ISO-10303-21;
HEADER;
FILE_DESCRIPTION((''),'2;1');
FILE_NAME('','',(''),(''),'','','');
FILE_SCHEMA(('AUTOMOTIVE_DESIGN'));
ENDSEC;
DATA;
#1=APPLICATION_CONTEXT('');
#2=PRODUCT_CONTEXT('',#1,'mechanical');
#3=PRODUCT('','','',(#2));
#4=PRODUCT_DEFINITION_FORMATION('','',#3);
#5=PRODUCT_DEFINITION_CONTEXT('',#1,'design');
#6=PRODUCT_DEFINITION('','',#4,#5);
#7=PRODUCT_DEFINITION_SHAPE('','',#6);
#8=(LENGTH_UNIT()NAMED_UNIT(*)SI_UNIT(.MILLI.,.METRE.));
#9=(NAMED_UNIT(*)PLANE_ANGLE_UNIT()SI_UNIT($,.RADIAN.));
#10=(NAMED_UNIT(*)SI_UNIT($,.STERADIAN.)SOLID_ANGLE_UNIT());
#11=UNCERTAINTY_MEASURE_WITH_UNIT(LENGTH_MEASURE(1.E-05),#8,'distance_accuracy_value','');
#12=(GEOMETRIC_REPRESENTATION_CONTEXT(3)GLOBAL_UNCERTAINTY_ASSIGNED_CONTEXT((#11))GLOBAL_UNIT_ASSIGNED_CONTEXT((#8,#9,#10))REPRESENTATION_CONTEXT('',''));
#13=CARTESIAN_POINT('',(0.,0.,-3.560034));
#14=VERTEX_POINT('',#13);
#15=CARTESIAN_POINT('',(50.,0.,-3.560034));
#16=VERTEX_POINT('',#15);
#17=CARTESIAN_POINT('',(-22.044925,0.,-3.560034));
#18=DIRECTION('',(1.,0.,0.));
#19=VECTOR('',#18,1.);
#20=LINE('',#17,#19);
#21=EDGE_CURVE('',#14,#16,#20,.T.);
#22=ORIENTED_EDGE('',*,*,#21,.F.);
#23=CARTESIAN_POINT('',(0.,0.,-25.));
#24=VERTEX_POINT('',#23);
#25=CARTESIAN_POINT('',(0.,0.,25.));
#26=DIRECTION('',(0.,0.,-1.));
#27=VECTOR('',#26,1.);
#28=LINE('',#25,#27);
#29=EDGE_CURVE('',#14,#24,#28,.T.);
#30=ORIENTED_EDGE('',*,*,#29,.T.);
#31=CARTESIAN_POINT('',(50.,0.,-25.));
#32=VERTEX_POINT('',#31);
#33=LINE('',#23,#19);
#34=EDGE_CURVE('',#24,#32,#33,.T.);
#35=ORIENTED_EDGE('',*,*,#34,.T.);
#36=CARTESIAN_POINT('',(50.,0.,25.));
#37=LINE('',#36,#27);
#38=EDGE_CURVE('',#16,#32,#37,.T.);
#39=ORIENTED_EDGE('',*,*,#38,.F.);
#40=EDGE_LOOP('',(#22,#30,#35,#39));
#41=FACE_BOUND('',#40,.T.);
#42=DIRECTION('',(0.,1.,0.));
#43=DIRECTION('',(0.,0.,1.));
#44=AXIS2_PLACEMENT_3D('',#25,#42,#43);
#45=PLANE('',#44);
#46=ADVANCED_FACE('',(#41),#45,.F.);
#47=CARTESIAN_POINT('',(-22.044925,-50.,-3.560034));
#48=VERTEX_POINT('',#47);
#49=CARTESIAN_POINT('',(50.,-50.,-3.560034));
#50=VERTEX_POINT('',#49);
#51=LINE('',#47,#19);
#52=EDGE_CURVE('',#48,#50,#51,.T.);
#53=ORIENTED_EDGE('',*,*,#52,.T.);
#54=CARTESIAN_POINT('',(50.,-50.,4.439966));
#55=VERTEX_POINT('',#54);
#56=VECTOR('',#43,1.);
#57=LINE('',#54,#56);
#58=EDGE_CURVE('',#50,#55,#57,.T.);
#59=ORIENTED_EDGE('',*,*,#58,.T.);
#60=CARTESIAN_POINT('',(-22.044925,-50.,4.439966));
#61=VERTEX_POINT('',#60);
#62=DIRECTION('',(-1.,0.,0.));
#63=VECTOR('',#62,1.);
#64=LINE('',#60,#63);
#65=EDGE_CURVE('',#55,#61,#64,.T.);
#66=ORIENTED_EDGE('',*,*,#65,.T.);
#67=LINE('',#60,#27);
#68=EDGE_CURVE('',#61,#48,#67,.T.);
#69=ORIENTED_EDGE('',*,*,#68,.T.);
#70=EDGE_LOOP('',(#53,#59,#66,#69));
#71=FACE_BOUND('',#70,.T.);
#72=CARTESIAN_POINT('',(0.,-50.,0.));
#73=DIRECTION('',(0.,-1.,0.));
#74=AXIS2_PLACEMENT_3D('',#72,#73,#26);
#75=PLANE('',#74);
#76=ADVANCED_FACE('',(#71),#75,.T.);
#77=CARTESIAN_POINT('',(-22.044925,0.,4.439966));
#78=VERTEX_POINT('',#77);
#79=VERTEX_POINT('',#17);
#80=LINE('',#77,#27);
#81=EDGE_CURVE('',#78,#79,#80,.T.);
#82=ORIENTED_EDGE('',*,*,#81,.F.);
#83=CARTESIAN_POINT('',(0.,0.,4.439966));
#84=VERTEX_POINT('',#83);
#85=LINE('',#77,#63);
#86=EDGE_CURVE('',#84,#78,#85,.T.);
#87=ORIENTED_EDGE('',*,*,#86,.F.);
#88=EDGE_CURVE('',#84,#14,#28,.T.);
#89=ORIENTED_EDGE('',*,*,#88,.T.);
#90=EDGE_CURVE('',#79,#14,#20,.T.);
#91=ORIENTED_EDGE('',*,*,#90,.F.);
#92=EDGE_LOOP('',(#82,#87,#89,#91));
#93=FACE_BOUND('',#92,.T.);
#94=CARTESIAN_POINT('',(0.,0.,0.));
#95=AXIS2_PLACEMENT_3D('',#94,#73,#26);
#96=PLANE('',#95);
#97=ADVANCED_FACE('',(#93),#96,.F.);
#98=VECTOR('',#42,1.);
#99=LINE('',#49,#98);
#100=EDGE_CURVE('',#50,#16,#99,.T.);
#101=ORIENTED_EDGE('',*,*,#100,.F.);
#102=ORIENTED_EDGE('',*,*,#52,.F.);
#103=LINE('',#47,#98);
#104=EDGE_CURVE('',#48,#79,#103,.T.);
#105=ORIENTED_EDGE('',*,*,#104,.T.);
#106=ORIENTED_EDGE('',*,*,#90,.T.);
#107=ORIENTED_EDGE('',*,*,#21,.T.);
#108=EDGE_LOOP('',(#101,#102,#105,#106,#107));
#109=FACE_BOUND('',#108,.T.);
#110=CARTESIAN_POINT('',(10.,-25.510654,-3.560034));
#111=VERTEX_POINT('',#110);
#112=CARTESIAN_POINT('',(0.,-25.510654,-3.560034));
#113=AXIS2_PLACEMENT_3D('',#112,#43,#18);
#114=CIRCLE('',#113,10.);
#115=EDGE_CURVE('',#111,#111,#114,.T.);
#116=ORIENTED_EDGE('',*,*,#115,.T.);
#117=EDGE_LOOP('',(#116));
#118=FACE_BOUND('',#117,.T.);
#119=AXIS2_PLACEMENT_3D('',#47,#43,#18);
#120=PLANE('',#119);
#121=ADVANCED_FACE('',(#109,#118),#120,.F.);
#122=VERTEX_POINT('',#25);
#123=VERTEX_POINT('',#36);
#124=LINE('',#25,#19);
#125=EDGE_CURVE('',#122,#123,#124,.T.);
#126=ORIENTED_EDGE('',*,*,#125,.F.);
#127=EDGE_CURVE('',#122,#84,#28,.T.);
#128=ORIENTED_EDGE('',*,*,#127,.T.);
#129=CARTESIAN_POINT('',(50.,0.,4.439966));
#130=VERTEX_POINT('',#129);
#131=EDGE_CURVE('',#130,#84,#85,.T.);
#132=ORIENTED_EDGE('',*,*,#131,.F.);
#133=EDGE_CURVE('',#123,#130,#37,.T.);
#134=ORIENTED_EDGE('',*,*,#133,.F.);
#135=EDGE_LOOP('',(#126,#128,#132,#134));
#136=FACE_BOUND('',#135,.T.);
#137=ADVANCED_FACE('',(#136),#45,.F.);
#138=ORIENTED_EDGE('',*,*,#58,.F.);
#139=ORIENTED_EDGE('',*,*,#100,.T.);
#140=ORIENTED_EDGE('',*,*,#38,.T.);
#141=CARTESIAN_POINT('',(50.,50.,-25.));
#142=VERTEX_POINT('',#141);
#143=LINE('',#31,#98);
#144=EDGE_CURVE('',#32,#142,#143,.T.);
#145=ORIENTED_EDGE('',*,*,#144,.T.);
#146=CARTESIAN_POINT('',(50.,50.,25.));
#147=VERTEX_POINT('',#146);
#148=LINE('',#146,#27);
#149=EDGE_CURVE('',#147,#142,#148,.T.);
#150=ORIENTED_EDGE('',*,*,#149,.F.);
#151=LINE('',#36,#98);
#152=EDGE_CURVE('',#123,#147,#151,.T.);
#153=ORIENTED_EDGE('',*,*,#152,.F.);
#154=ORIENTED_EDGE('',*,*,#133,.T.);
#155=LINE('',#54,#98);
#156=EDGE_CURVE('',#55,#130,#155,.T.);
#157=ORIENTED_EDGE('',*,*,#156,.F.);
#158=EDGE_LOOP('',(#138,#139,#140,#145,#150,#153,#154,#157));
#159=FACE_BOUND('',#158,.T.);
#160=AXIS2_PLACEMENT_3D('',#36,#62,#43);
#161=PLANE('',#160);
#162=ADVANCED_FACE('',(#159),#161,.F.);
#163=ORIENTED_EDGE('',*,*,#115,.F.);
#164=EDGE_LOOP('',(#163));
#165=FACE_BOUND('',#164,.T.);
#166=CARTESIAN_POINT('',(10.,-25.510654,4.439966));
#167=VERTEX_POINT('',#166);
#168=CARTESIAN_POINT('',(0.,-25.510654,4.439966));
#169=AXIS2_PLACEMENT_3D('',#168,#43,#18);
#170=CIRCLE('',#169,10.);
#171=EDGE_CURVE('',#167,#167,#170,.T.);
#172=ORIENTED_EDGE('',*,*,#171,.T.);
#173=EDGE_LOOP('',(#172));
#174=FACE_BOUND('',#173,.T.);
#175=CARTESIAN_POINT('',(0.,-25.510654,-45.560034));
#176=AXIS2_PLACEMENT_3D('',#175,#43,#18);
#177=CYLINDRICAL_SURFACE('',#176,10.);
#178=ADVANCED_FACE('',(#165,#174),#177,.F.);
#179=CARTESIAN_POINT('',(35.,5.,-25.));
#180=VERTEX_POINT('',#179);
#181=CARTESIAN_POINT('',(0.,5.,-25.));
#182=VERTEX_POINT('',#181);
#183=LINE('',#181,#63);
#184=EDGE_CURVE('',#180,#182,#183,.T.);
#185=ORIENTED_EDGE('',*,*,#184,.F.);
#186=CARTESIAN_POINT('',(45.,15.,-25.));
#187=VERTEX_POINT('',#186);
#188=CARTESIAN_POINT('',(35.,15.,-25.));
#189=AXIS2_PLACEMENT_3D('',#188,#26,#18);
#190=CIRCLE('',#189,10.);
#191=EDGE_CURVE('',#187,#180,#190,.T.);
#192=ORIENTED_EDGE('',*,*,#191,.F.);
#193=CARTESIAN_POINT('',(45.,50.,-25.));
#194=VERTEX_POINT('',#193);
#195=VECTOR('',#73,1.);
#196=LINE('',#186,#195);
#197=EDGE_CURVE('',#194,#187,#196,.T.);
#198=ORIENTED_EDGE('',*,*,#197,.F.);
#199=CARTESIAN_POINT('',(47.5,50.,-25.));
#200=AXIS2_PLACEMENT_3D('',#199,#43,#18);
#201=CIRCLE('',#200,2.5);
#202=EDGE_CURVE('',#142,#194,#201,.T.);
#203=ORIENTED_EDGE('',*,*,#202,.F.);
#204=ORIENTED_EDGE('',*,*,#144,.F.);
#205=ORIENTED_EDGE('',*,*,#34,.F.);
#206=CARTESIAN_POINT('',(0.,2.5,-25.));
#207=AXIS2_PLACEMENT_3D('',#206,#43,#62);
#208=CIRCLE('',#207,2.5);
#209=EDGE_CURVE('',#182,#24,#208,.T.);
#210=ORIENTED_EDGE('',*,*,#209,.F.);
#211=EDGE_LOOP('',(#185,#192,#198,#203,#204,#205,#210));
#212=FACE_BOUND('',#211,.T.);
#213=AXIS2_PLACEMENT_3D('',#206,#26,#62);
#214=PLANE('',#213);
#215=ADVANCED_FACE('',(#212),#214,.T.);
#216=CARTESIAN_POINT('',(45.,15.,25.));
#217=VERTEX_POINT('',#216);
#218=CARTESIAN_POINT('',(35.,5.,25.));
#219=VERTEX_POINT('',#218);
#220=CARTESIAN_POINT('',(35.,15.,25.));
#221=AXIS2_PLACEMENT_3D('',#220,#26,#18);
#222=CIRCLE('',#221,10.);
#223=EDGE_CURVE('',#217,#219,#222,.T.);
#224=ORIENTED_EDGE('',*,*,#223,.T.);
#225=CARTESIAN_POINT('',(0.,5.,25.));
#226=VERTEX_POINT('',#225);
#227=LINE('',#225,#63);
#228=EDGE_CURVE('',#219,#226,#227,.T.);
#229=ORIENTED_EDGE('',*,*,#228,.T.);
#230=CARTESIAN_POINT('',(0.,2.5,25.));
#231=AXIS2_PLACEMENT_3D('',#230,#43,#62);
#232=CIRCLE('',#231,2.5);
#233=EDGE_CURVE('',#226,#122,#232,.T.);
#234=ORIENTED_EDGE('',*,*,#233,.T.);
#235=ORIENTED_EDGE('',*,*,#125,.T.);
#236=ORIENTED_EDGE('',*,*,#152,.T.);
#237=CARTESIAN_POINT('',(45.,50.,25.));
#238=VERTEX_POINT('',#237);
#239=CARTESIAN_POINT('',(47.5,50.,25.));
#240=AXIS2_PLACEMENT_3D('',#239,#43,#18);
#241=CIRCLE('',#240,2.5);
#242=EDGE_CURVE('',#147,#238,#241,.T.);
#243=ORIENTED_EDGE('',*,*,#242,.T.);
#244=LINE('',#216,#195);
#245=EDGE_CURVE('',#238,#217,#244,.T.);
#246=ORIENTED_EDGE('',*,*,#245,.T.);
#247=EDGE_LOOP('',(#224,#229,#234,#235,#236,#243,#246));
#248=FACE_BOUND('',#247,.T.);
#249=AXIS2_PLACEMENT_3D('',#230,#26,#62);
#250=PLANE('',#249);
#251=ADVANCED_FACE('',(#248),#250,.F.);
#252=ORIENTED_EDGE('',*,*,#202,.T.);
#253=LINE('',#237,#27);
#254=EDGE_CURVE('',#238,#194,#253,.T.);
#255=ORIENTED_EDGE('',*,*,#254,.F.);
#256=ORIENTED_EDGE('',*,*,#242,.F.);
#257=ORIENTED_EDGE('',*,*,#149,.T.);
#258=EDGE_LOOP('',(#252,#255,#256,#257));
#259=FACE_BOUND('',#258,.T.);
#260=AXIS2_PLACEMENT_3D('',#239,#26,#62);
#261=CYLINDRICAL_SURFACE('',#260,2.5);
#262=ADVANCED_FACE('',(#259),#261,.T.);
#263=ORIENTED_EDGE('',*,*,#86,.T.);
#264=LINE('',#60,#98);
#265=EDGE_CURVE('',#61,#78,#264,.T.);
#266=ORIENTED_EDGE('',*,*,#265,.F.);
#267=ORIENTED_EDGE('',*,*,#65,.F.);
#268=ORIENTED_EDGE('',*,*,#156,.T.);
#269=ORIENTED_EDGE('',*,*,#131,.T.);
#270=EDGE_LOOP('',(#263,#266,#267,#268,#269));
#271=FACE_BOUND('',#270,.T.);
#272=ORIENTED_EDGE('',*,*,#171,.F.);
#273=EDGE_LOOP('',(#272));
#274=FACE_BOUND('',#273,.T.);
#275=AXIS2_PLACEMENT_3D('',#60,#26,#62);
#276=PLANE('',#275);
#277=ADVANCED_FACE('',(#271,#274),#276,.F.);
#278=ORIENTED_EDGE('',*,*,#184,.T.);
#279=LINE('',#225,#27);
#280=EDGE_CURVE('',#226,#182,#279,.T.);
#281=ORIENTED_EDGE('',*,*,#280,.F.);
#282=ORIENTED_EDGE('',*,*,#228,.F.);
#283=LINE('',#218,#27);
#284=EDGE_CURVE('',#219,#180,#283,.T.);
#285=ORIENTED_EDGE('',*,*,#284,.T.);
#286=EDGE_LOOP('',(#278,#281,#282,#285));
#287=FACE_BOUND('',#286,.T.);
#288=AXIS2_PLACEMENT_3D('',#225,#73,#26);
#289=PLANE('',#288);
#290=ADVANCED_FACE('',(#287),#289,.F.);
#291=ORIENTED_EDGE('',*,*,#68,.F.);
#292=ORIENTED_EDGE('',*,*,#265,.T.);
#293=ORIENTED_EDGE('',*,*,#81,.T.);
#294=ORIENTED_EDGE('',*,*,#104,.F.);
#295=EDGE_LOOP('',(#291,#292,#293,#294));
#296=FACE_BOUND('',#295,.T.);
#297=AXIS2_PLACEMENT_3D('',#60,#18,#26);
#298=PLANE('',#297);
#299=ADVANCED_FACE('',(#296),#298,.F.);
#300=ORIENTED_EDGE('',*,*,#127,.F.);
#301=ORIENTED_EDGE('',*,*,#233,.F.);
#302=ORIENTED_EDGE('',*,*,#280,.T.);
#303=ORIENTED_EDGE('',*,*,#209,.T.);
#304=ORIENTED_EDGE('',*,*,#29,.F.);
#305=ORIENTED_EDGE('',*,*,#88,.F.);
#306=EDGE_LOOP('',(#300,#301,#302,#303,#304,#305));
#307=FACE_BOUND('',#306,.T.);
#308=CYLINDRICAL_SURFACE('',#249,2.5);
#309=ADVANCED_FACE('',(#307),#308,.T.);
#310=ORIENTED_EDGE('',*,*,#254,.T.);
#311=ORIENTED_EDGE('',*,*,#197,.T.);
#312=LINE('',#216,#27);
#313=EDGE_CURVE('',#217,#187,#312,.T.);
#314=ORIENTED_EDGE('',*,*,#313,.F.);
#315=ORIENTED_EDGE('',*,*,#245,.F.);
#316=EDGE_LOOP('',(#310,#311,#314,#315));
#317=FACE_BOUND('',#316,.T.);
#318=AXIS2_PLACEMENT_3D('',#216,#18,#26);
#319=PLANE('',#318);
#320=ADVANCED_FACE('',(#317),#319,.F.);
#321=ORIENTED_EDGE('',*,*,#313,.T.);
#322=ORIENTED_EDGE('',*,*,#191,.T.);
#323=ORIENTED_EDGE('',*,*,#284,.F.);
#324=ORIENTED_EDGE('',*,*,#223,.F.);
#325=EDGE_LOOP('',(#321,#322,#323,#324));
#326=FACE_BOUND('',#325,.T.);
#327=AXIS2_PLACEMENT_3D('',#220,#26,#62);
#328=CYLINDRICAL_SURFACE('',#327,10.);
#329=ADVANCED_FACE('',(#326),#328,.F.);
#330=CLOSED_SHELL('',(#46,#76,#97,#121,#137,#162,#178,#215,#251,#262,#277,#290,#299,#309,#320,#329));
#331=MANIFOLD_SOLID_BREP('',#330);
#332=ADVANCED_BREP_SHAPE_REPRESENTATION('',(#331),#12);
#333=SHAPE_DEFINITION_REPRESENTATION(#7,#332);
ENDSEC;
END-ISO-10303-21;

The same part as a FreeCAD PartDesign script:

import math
import FreeCAD as App
import Part
import Sketcher

V = App.Vector


def add_polygon(sketch, points):
    """Adds a closed chain of lines whose ends are joined by coincident constraints."""
    first, n = sketch.GeometryCount, len(points)
    for a, b in zip(points, points[1:] + points[:1]):
        sketch.addGeometry(Part.LineSegment(App.Vector(*a, 0), App.Vector(*b, 0)), False)
    for i in range(n):
        sketch.addConstraint(Sketcher.Constraint("Coincident", first + i, 2, first + (i + 1) % n, 1))

doc = App.newDocument("Part")
body = doc.addObject("PartDesign::Body", "Body")

sketch1 = body.newObject("Sketcher::SketchObject", "Sketch")
sketch1.AttachmentSupport = (doc.getObject("XY_Plane"), [""])
sketch1.MapMode = "FlatFace"
sketch1.addGeometry([
    Part.LineSegment(V(0, 0, 0), V(50, 0, 0)),
    Part.LineSegment(V(50, 0, 0), V(50, 50, 0)),
    Part.ArcOfCircle(Part.Circle(V(47.5, 50, 0), V(0, 0, 1), 2.5), math.radians(0), math.radians(180)),
    Part.LineSegment(V(45, 50, 0), V(45, 15, 0)),
    Part.ArcOfCircle(Part.Circle(V(35, 15, 0), V(0, 0, 1), 10), math.radians(-90), math.radians(0)),
    Part.LineSegment(V(35, 5, 0), V(0, 5, 0)),
    Part.ArcOfCircle(Part.Circle(V(0, 2.5, 0), V(0, 0, 1), 2.5), math.radians(90), math.radians(270)),
], False)
sketch1.addConstraint([
    Sketcher.Constraint("Coincident", 0, 2, 1, 1),
    Sketcher.Constraint("Tangent", 1, 2, 2, 1),
    Sketcher.Constraint("Tangent", 2, 2, 3, 1),
    Sketcher.Constraint("Tangent", 3, 2, 4, 2),
    Sketcher.Constraint("Tangent", 4, 1, 5, 1),
    Sketcher.Constraint("Tangent", 5, 2, 6, 1),
    Sketcher.Constraint("Tangent", 6, 2, 0, 1),
    Sketcher.Constraint("Horizontal", 0),
    Sketcher.Constraint("Vertical", 1),
    Sketcher.Constraint("Vertical", 3),
    Sketcher.Constraint("Horizontal", 5),
    Sketcher.Constraint("Coincident", 6, 2, -1, 1),
    Sketcher.Constraint("Equal", 2, 6),
    Sketcher.Constraint("Equal", 0, 1),
    Sketcher.Constraint("Radius", 4, 10.0),
    Sketcher.Constraint("Radius", 2, 2.5),
    Sketcher.Constraint("DistanceX", 0, 1, 0, 2, 50.0),
])
pad1 = body.newObject("PartDesign::Pad", "Pad")
pad1.Profile = sketch1
pad1.Length = 50
pad1.Midplane = True

sketch2 = body.newObject("Sketcher::SketchObject", "Sketch001")
sketch2.AttachmentSupport = (doc.getObject("XZ_Plane"), [""])
sketch2.MapMode = "FlatFace"
add_polygon(sketch2, [(-22, 4), (-22, -4), (50, -4), (50, 4)])
sketch2.addConstraint([
    Sketcher.Constraint("Vertical", 0),
    Sketcher.Constraint("Horizontal", 1),
    Sketcher.Constraint("Vertical", 2),
    Sketcher.Constraint("Horizontal", 3),
    Sketcher.Constraint("DistanceY", 0, 2, 0, 1, 8.0),
    Sketcher.Constraint("DistanceX", -1, 1, 1, 2, 50.0),
    Sketcher.Constraint("DistanceX", 1, 1, 1, 2, 72.044925),
    Sketcher.Constraint("DistanceY", 0, 2, -1, 1, 3.560034),
])
pad2 = body.newObject("PartDesign::Pad", "Pad001")
pad2.Profile = sketch2
pad2.Length = 50

sketch3 = body.newObject("Sketcher::SketchObject", "Sketch002")
sketch3.AttachmentSupport = (doc.getObject("XY_Plane"), [""])
sketch3.MapMode = "FlatFace"
sketch3.AttachmentOffset = App.Placement(V(0, 0, 4.439966), App.Rotation())
sketch3.addGeometry(Part.Circle(V(0, -26, 0), V(0, 0, 1), 10), False)
sketch3.addConstraint([
    Sketcher.Constraint("PointOnObject", 0, 3, -2),
    Sketcher.Constraint("Diameter", 0, 20.0),
    Sketcher.Constraint("DistanceY", 0, 3, -1, 1, 25.510654),
])
pocket1 = body.newObject("PartDesign::Pocket", "Pocket")
pocket1.Profile = sketch3
pocket1.Length = 50

doc.recompute()
